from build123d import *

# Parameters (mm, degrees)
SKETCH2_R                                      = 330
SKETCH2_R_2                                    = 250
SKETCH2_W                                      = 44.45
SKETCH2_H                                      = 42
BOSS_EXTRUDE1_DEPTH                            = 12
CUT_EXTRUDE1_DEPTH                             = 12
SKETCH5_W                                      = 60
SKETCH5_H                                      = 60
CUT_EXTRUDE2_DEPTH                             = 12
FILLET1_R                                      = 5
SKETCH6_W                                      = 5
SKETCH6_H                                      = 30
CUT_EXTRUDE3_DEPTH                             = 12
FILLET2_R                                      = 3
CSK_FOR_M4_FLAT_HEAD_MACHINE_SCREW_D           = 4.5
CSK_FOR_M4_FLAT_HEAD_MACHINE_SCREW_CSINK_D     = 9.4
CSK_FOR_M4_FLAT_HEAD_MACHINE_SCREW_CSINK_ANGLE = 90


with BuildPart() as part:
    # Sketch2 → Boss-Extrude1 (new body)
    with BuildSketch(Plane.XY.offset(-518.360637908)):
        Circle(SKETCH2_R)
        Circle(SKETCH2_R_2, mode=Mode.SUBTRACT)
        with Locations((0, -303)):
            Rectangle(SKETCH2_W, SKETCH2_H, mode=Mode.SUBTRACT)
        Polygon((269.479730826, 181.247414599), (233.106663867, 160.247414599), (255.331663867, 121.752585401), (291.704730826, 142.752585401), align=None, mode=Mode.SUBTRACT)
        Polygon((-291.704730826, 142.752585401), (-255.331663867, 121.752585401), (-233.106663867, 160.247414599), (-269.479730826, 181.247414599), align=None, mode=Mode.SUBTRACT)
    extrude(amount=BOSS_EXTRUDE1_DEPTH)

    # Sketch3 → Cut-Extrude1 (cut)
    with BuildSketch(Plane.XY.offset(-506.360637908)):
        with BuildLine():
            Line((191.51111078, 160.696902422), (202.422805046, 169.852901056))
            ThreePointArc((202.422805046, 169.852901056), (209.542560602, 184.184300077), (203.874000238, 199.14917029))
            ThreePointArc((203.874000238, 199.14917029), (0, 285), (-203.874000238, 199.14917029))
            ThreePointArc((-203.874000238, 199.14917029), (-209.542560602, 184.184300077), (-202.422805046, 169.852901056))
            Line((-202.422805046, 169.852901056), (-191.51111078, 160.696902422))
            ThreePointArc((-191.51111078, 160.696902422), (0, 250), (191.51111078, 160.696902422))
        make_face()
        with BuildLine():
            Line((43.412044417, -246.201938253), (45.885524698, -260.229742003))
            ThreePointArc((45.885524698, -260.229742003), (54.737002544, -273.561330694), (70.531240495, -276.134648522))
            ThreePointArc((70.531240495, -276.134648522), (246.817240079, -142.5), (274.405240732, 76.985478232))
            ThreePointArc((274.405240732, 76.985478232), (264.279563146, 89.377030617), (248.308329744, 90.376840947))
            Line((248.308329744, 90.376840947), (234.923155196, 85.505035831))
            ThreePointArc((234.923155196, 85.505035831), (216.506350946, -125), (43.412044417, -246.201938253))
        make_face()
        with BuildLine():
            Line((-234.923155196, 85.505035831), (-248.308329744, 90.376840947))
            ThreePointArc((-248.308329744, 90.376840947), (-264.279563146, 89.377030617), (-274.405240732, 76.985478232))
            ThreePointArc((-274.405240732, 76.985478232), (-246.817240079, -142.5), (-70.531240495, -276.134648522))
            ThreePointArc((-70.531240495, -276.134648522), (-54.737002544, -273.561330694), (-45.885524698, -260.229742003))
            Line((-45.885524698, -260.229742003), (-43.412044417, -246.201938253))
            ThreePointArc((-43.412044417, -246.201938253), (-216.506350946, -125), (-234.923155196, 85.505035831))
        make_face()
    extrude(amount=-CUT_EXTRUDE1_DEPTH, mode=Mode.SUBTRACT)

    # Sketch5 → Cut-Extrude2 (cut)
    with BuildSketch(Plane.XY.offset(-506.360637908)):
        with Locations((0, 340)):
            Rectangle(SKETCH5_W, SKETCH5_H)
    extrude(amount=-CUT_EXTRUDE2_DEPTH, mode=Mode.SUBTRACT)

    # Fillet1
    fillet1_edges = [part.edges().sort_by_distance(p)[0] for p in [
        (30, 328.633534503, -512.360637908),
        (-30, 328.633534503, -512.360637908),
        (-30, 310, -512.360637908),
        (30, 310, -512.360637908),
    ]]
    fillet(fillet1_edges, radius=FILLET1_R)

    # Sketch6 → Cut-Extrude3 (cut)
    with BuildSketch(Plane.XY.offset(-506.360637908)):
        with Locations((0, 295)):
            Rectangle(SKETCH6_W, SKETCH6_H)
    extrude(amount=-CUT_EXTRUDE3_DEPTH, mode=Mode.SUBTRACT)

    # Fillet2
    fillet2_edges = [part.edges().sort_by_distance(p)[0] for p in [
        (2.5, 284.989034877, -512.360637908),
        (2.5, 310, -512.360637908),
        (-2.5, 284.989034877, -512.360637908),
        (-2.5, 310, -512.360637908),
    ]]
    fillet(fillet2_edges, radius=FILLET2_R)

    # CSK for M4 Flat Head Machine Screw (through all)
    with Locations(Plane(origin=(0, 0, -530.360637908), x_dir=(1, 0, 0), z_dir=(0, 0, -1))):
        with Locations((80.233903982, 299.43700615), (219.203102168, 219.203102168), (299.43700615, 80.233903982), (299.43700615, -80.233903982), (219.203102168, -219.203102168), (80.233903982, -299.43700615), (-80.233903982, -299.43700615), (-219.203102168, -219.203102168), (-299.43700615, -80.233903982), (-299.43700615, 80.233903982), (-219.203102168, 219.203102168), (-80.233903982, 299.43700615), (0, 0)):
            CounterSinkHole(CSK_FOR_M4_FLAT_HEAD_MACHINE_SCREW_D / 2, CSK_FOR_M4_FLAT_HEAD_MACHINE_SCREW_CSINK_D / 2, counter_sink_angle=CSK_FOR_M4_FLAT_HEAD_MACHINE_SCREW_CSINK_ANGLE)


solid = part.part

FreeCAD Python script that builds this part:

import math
import FreeCAD as App
import Part
import Sketcher

V = App.Vector
Q = App.Units.Quantity


def edges_at(feature, points):
    """Names of the edges that pass closest to the given points."""
    edges = feature.Shape.Edges
    near = lambda p: min(range(len(edges)), key=lambda i: edges[i].distToShape(Part.Vertex(*p))[0])
    return sorted({f"Edge{near(p) + 1}" for p in points})


def add_polygon(sketch, points):
    """Adds a closed chain of lines whose ends are joined by coincident constraints."""
    first, n = sketch.GeometryCount, len(points)
    for a, b in zip(points, points[1:] + points[:1]):
        sketch.addGeometry(Part.LineSegment(App.Vector(*a, 0), App.Vector(*b, 0)), False)
    for i in range(n):
        sketch.addConstraint(Sketcher.Constraint("Coincident", first + i, 2, first + (i + 1) % n, 1))

doc = App.newDocument("Part")
params = doc.addObject("Spreadsheet::Sheet", "Params")
for row, (alias, value) in enumerate([
    ("sketch1_diameter", "660 mm"),
    ("sketch1_diameter2", "500 mm"),
    ("sketch1_height", "42 mm"),
    ("sketch1_length", "42 mm"),
    ("sketch1_width", "44.45 mm"),
    ("pad1_length", "12 mm"),
    ("sketch2_radius", "20 mm"),
    ("sketch2_radius2", "285 mm"),
    ("sketch2_radius3", "250 mm"),
    ("pocket1_length", "12 mm"),
    ("sketch3_width", "60 mm"),
    ("pocket2_length", "12 mm"),
    ("fillet_radius", "5 mm"),
    ("sketch4_width", "5 mm"),
    ("sketch4_height", "30 mm"),
    ("pocket3_length", "12 mm"),
    ("fillet2_radius", "3 mm"),
    ("sketch5_diameter", "4.5 mm"),
    ("hole_diameter", "4.5 mm"),
    ("hole_csink_diameter", "9.4 mm"),
], start=1):
    params.set(f"A{row}", alias)
    params.set(f"B{row}", "=" + value)
    params.setAlias(f"B{row}", alias)

body = doc.addObject("PartDesign::Body", "Body")

# Sketch on XY plane
sketch1 = body.newObject("Sketcher::SketchObject", "Sketch")
sketch1.AttachmentSupport = (doc.getObject("XY_Plane"), [""])
sketch1.MapMode = "FlatFace"
sketch1.AttachmentOffset = App.Placement(V(0, 0, -518.360638), App.Rotation())
sketch1.addGeometry(Part.Circle(V(0, 0, 0), V(0, 0, 1), 330), False)  # 0
add_polygon(sketch1, [(22, -324), (-22, -324), (-22, -282), (22, -282)])  # lines 1-4
add_polygon(sketch1, [(-255, 122), (-292, 143), (-269, 181), (-233, 160)])  # lines 5-8
sketch1.addGeometry(Part.Circle(V(0, 0, 0), V(0, 0, 1), 250), False)  # 9
add_polygon(sketch1, [(233, 160), (269, 181), (292, 143), (255, 122)])  # lines 10-13
sketch1.addConstraint([
    Sketcher.Constraint("Horizontal", 1),
    Sketcher.Constraint("Vertical", 2),
    Sketcher.Constraint("Horizontal", 3),
    Sketcher.Constraint("Vertical", 4),
    Sketcher.Constraint("Coincident", 0, 3, -1, 1),
    Sketcher.Constraint("Coincident", 9, 3, -1, 1),
    Sketcher.Constraint("Symmetric", 6, 2, 10, 2, -2),
    Sketcher.Constraint("Symmetric", 5, 2, 11, 2, -2),
    Sketcher.Constraint("Symmetric", 8, 2, 12, 2, -2),
    Sketcher.Constraint("Symmetric", 7, 2, 13, 2, -2),
    Sketcher.Constraint("Perpendicular", 5, 6),
    Sketcher.Constraint("Perpendicular", 6, 7),
    Sketcher.Constraint("Perpendicular", 7, 8),
    Sketcher.Constraint("Diameter", 0, Q("660 mm")),
    Sketcher.Constraint("Diameter", 9, Q("500 mm")),
    Sketcher.Constraint("DistanceY", 2, 1, 2, 2, Q("42 mm")),
    Sketcher.Constraint("Angle", 5, Q("150 deg")),
    Sketcher.Constraint("Distance", 5, Q("42 mm")),
    Sketcher.Constraint("DistanceY", 1, 2, -1, 1, Q("324 mm")),
    Sketcher.Constraint("DistanceX", 1, 2, 1, 1, Q("44.45 mm")),
    Sketcher.Constraint("Distance", 6, Q("44.45 mm")),
    Sketcher.Constraint("DistanceX", 1, 2, -1, 1, Q("22.225 mm")),
    Sketcher.Constraint("DistanceX", 5, 2, -1, 1, Q("291.704731 mm")),
    Sketcher.Constraint("DistanceY", -1, 1, 5, 2, Q("142.752585 mm")),
])
sketch1.setExpression("Constraints[25]", "Params.sketch1_diameter")
sketch1.setExpression("Constraints[26]", "Params.sketch1_diameter2")
sketch1.setExpression("Constraints[27]", "Params.sketch1_height")
sketch1.setExpression("Constraints[29]", "Params.sketch1_length")
sketch1.setExpression("Constraints[31]", "Params.sketch1_width")
pad1 = body.newObject("PartDesign::Pad", "Pad")
pad1.Profile = sketch1
pad1.setExpression("Length", "Params.pad1_length")

# Sketch on XY plane
sketch2 = body.newObject("Sketcher::SketchObject", "Sketch001")
sketch2.AttachmentSupport = (doc.getObject("XY_Plane"), [""])
sketch2.MapMode = "FlatFace"
sketch2.AttachmentOffset = App.Placement(V(0, 0, -506.360638), App.Rotation())
sketch2.addGeometry([
    Part.LineSegment(V(192, 161, 0), V(202, 170, 0)),  # 0
    Part.ArcOfCircle(Part.Circle(V(190, 185, 0), V(0, 0, 1), 20), math.radians(-50), math.radians(44)),  # 1
    Part.ArcOfCircle(Part.Circle(V(0, 0, 0), V(0, 0, 1), 285), math.radians(44), math.radians(136)),  # 2
    Part.ArcOfCircle(Part.Circle(V(-190, 185, 0), V(0, 0, 1), 20), math.radians(136), math.radians(230)),  # 3
    Part.LineSegment(V(-202, 170, 0), V(-192, 161, 0)),  # 4
    Part.ArcOfCircle(Part.Circle(V(0, 0, 0), V(0, 0, 1), 250), math.radians(40), math.radians(140)),  # 5
    Part.LineSegment(V(43, -246, 0), V(46, -260, 0)),  # 6
    Part.ArcOfCircle(Part.Circle(V(66, -257, 0), V(0, 0, 1), 20), math.radians(-170), math.radians(-76)),  # 7
    Part.ArcOfCircle(Part.Circle(V(0, 0, 0), V(0, 0, 1), 285), math.radians(-76), math.radians(16)),  # 8
    Part.ArcOfCircle(Part.Circle(V(255, 72, 0), V(0, 0, 1), 20), math.radians(16), math.radians(110)),  # 9
    Part.LineSegment(V(248, 90, 0), V(235, 86, 0)),  # 10
    Part.ArcOfCircle(Part.Circle(V(0, 0, 0), V(0, 0, 1), 250), math.radians(-80), math.radians(20)),  # 11
    Part.LineSegment(V(-235, 86, 0), V(-248, 90, 0)),  # 12
    Part.ArcOfCircle(Part.Circle(V(-255, 72, 0), V(0, 0, 1), 20), math.radians(70), math.radians(164)),  # 13
    Part.ArcOfCircle(Part.Circle(V(0, 0, 0), V(0, 0, 1), 285), math.radians(164), math.radians(256)),  # 14
    Part.ArcOfCircle(Part.Circle(V(-66, -257, 0), V(0, 0, 1), 20), math.radians(-104), math.radians(-10)),  # 15
    Part.LineSegment(V(-46, -260, 0), V(-43, -246, 0)),  # 16
    Part.ArcOfCircle(Part.Circle(V(0, 0, 0), V(0, 0, 1), 250), math.radians(160), math.radians(260)),  # 17
], False)
sketch2.addConstraint([
    Sketcher.Constraint("Tangent", 0, 2, 1, 1),
    Sketcher.Constraint("Tangent", 1, 2, 2, 1),
    Sketcher.Constraint("Tangent", 2, 2, 3, 1),
    Sketcher.Constraint("Tangent", 3, 2, 4, 1),
    Sketcher.Constraint("Coincident", 4, 2, 5, 2),
    Sketcher.Constraint("Coincident", 5, 1, 0, 1),
    Sketcher.Constraint("Tangent", 6, 2, 7, 1),
    Sketcher.Constraint("Tangent", 7, 2, 8, 1),
    Sketcher.Constraint("Tangent", 8, 2, 9, 1),
    Sketcher.Constraint("Tangent", 9, 2, 10, 1),
    Sketcher.Constraint("Coincident", 10, 2, 11, 2),
    Sketcher.Constraint("Coincident", 11, 1, 6, 1),
    Sketcher.Constraint("Tangent", 12, 2, 13, 1),
    Sketcher.Constraint("Tangent", 13, 2, 14, 1),
    Sketcher.Constraint("Tangent", 14, 2, 15, 1),
    Sketcher.Constraint("Tangent", 15, 2, 16, 1),
    Sketcher.Constraint("Coincident", 16, 2, 17, 2),
    Sketcher.Constraint("Coincident", 17, 1, 12, 1),
    Sketcher.Constraint("Coincident", 2, 3, -1, 1),
    Sketcher.Constraint("Coincident", 5, 3, -1, 1),
    Sketcher.Constraint("Coincident", 8, 3, -1, 1),
    Sketcher.Constraint("Coincident", 11, 3, -1, 1),
    Sketcher.Constraint("Coincident", 14, 3, -1, 1),
    Sketcher.Constraint("Coincident", 17, 3, -1, 1),
    Sketcher.Constraint("Equal", 1, 3),
    Sketcher.Constraint("Equal", 3, 7),
    Sketcher.Constraint("Equal", 2, 8),
    Sketcher.Constraint("Equal", 7, 9),
    Sketcher.Constraint("Equal", 5, 11),
    Sketcher.Constraint("Equal", 9, 13),
    Sketcher.Constraint("Equal", 8, 14),
    Sketcher.Constraint("Equal", 13, 15),
    Sketcher.Constraint("Equal", 11, 17),
    Sketcher.Constraint("Symmetric", 0, 2, 3, 2, -2),
    Sketcher.Constraint("Symmetric", 9, 2, 12, 2, -2),
    Sketcher.Constraint("Symmetric", 6, 2, 15, 2, -2),
    Sketcher.Constraint("Equal", 4, 6),
    Sketcher.Constraint("Equal", 6, 10),
    Sketcher.Constraint("Radius", 1, Q("20 mm")),
    Sketcher.Constraint("Radius", 2, Q("285 mm")),
    Sketcher.Constraint("Radius", 5, Q("250 mm")),
    Sketcher.Constraint("Angle", 0, Q("40 deg")),
    Sketcher.Constraint("Angle", 6, Q("-80 deg")),
    Sketcher.Constraint("Angle", 10, Q("-160 deg")),
    Sketcher.Constraint("DistanceX", -1, 1, 1, 2, Q("203.874 mm")),
])
sketch2.setExpression("Constraints[38]", "Params.sketch2_radius")
sketch2.setExpression("Constraints[39]", "Params.sketch2_radius2")
sketch2.setExpression("Constraints[40]", "Params.sketch2_radius3")
pocket1 = body.newObject("PartDesign::Pocket", "Pocket")
pocket1.Profile = sketch2
pocket1.setExpression("Length", "Params.pocket1_length")

# Sketch on XY plane
sketch3 = body.newObject("Sketcher::SketchObject", "Sketch002")
sketch3.AttachmentSupport = (doc.getObject("XY_Plane"), [""])
sketch3.MapMode = "FlatFace"
sketch3.AttachmentOffset = App.Placement(V(0, 0, -506.360638), App.Rotation())
add_polygon(sketch3, [(-30, 370), (-30, 310), (30, 310), (30, 370)])  # lines 0-3
sketch3.addConstraint([
    Sketcher.Constraint("Vertical", 0),
    Sketcher.Constraint("Horizontal", 1),
    Sketcher.Constraint("Vertical", 2),
    Sketcher.Constraint("Horizontal", 3),
    Sketcher.Constraint("Equal", 3, 0),
    Sketcher.Constraint("DistanceX", 1, 1, 1, 2, Q("60 mm")),
    Sketcher.Constraint("DistanceX", 0, 2, -1, 1, Q("30 mm")),
    Sketcher.Constraint("DistanceY", -1, 1, 0, 2, Q("310 mm")),
])
sketch3.setExpression("Constraints[9]", "Params.sketch3_width")
pocket2 = body.newObject("PartDesign::Pocket", "Pocket001")
pocket2.Profile = sketch3
pocket2.setExpression("Length", "Params.pocket2_length")
doc.recompute()

fillet = body.newObject("PartDesign::Fillet", "Fillet")
fillet.Base = (pocket2, edges_at(pocket2, [
    (30, 328.634, -512.361),
    (-30, 328.634, -512.361),
    (-30, 310, -512.361),
    (30, 310, -512.361),
]))
fillet.setExpression("Radius", "Params.fillet_radius")

# Sketch on XY plane
sketch4 = body.newObject("Sketcher::SketchObject", "Sketch003")
sketch4.AttachmentSupport = (doc.getObject("XY_Plane"), [""])
sketch4.MapMode = "FlatFace"
sketch4.AttachmentOffset = App.Placement(V(0, 0, -506.360638), App.Rotation())
add_polygon(sketch4, [(-2, 310), (-2, 280), (2, 280), (2, 310)])  # lines 0-3
sketch4.addConstraint([
    Sketcher.Constraint("Vertical", 0),
    Sketcher.Constraint("Horizontal", 1),
    Sketcher.Constraint("Vertical", 2),
    Sketcher.Constraint("Horizontal", 3),
    Sketcher.Constraint("DistanceX", 1, 1, 1, 2, Q("5 mm")),
    Sketcher.Constraint("DistanceY", 0, 2, 0, 1, Q("30 mm")),
    Sketcher.Constraint("DistanceY", -1, 1, 0, 2, Q("280 mm")),
    Sketcher.Constraint("DistanceX", 0, 2, -1, 1, Q("2.5 mm")),
])
sketch4.setExpression("Constraints[8]", "Params.sketch4_width")
sketch4.setExpression("Constraints[9]", "Params.sketch4_height")
pocket3 = body.newObject("PartDesign::Pocket", "Pocket002")
pocket3.Profile = sketch4
pocket3.setExpression("Length", "Params.pocket3_length")
doc.recompute()

fillet2 = body.newObject("PartDesign::Fillet", "Fillet001")
fillet2.Base = (pocket3, edges_at(pocket3, [
    (2.5, 284.989, -512.361),
    (2.5, 310, -512.361),
    (-2.5, 284.989, -512.361),
    (-2.5, 310, -512.361),
]))
fillet2.setExpression("Radius", "Params.fillet2_radius")

# Sketch on XY plane
sketch5 = body.newObject("Sketcher::SketchObject", "Sketch004")
sketch5.AttachmentSupport = (doc.getObject("XY_Plane"), [""])
sketch5.MapMode = "FlatFace"
sketch5.AttachmentOffset = App.Placement(V(0, 0, -530.360638), App.Rotation())
sketch5.addGeometry([
    Part.Circle(V(80.2, -299.4, 0), V(0, 0, 1), 2.2),  # 0
    Part.Circle(V(219.2, -219.2, 0), V(0, 0, 1), 2.2),  # 1
    Part.Circle(V(299.4, -80.2, 0), V(0, 0, 1), 2.2),  # 2
    Part.Circle(V(299.4, 80.2, 0), V(0, 0, 1), 2.2),  # 3
    Part.Circle(V(219.2, 219.2, 0), V(0, 0, 1), 2.2),  # 4
    Part.Circle(V(80.2, 299.4, 0), V(0, 0, 1), 2.2),  # 5
    Part.Circle(V(-80.2, 299.4, 0), V(0, 0, 1), 2.2),  # 6
    Part.Circle(V(-219.2, 219.2, 0), V(0, 0, 1), 2.2),  # 7
    Part.Circle(V(-299.4, 80.2, 0), V(0, 0, 1), 2.2),  # 8
    Part.Circle(V(-299.4, -80.2, 0), V(0, 0, 1), 2.2),  # 9
    Part.Circle(V(-219.2, -219.2, 0), V(0, 0, 1), 2.2),  # 10
    Part.Circle(V(-80.2, -299.4, 0), V(0, 0, 1), 2.2),  # 11
    Part.Circle(V(0, 0, 0), V(0, 0, 1), 2.2),  # 12
], False)
sketch5.addConstraint([
    Sketcher.Constraint("Coincident", 12, 3, -1, 1),
    Sketcher.Constraint("Equal", 0, 1),
    Sketcher.Constraint("Equal", 1, 2),
    Sketcher.Constraint("Equal", 2, 3),
    Sketcher.Constraint("Equal", 3, 4),
    Sketcher.Constraint("Equal", 4, 5),
    Sketcher.Constraint("Equal", 5, 6),
    Sketcher.Constraint("Equal", 6, 7),
    Sketcher.Constraint("Equal", 7, 8),
    Sketcher.Constraint("Equal", 8, 9),
    Sketcher.Constraint("Equal", 9, 10),
    Sketcher.Constraint("Equal", 10, 11),
    Sketcher.Constraint("Equal", 11, 12),
    Sketcher.Constraint("Symmetric", 0, 3, 6, 3, -1, 1),
    Sketcher.Constraint("Symmetric", 1, 3, 7, 3, -1, 1),
    Sketcher.Constraint("Symmetric", 2, 3, 8, 3, -1, 1),
    Sketcher.Constraint("Symmetric", 3, 3, 9, 3, -1, 1),
    Sketcher.Constraint("Symmetric", 4, 3, 10, 3, -1, 1),
    Sketcher.Constraint("Symmetric", 5, 3, 11, 3, -1, 1),
    Sketcher.Constraint("Symmetric", 5, 3, 6, 3, -2),
    Sketcher.Constraint("Symmetric", 4, 3, 7, 3, -2),
    Sketcher.Constraint("Symmetric", 3, 3, 8, 3, -2),
    Sketcher.Constraint("Diameter", 0, Q("4.5 mm")),
    Sketcher.Constraint("DistanceX", 0, 3, 1, 3, Q("138.969198 mm")),
    Sketcher.Constraint("DistanceY", 1, 3, 2, 3, Q("138.969198 mm")),
    Sketcher.Constraint("DistanceY", 0, 3, 3, 3, Q("379.67091 mm")),
    Sketcher.Constraint("DistanceX", 6, 3, 3, 3, Q("379.67091 mm")),
    Sketcher.Constraint("DistanceX", -1, 1, 0, 3, Q("80.233904 mm")),
    Sketcher.Constraint("DistanceY", 0, 3, -1, 1, Q("299.437006 mm")),
])
sketch5.setExpression("Constraints[22]", "Params.sketch5_diameter")
doc.recompute()
hole = body.newObject("PartDesign::Hole", "Hole")
hole.Profile = sketch5
hole.ThreadType = "None"
hole.setExpression("Diameter", "Params.hole_diameter")
hole.DepthType = "ThroughAll"
hole.HoleCutType = "Countersink"
hole.setExpression("HoleCutDiameter", "Params.hole_csink_diameter")
hole.HoleCutCountersinkAngle = 90
hole.Reversed = True

doc.recompute()
